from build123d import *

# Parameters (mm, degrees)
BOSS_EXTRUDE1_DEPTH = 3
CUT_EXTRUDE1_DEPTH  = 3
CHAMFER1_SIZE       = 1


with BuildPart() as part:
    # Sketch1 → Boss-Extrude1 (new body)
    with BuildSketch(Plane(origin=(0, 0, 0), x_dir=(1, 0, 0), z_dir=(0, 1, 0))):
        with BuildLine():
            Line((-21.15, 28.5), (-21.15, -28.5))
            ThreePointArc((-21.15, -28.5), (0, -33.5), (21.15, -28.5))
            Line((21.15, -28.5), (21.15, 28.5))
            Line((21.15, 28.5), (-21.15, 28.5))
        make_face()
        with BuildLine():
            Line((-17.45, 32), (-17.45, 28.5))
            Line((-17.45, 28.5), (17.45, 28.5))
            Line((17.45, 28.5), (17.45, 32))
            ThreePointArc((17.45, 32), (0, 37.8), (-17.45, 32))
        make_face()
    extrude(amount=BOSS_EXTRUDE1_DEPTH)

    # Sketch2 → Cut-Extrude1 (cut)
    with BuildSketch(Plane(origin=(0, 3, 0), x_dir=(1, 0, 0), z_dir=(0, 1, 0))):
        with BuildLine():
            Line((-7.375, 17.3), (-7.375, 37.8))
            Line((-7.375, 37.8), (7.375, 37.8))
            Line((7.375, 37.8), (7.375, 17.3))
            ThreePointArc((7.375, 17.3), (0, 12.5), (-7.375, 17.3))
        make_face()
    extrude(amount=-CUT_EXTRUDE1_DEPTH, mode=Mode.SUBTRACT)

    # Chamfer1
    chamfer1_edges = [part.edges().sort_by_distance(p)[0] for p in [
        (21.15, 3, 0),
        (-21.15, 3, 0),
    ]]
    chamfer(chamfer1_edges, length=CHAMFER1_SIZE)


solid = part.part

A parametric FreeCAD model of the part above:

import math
import FreeCAD as App
import Part
import Sketcher


def edges_at(feature, points):
    """Names of the edges that pass closest to the given points."""
    edges = feature.Shape.Edges
    near = lambda p: min(range(len(edges)), key=lambda i: edges[i].distToShape(Part.Vertex(*p))[0])
    return sorted({f"Edge{near(p) + 1}" for p in points})

doc = App.newDocument("Part")
body = doc.addObject("PartDesign::Body", "Body")

# Sketch on XZ plane
sketch1 = doc.addObject("Sketcher::SketchObject", "Sketch")
body.addObject(sketch1)
sketch1.AttachmentSupport = (doc.XZ_Plane, [""])
sketch1.MapMode = "FlatFace"
sketch1.addGeometry(Part.LineSegment(App.Vector(-21.15, -28.5, 0), App.Vector(-21.15, 28.5, 0)), False)
sketch1.addGeometry(Part.ArcOfCircle(Part.Circle(App.Vector(0, -13.73225, 0), App.Vector(0, 0, 1), 47.23225), math.radians(63.398195), math.radians(116.601805)), False)
sketch1.addGeometry(Part.LineSegment(App.Vector(21.15, 28.5, 0), App.Vector(21.15, -28.5, 0)), False)
sketch1.addGeometry(Part.LineSegment(App.Vector(21.15, -28.5, 0), App.Vector(17.45, -28.5, 0)), False)
sketch1.addGeometry(Part.LineSegment(App.Vector(17.45, -28.5, 0), App.Vector(17.45, -32, 0)), False)
sketch1.addGeometry(Part.ArcOfCircle(Part.Circle(App.Vector(0, -8.649784, 0), App.Vector(0, 0, 1), 29.150216), math.radians(-126.771367), math.radians(-53.228633)), False)
sketch1.addGeometry(Part.LineSegment(App.Vector(-17.45, -32, 0), App.Vector(-17.45, -28.5, 0)), False)
sketch1.addGeometry(Part.LineSegment(App.Vector(-17.45, -28.5, 0), App.Vector(-21.15, -28.5, 0)), False)
sketch1.addConstraint(Sketcher.Constraint("Coincident", 0, 2, 1, 2))
sketch1.addConstraint(Sketcher.Constraint("Coincident", 1, 1, 2, 1))
sketch1.addConstraint(Sketcher.Constraint("Coincident", 2, 2, 3, 1))
sketch1.addConstraint(Sketcher.Constraint("Coincident", 3, 2, 4, 1))
sketch1.addConstraint(Sketcher.Constraint("Coincident", 4, 2, 5, 2))
sketch1.addConstraint(Sketcher.Constraint("Coincident", 5, 1, 6, 1))
sketch1.addConstraint(Sketcher.Constraint("Coincident", 6, 2, 7, 1))
sketch1.addConstraint(Sketcher.Constraint("Coincident", 7, 2, 0, 1))
sketch1.addConstraint(Sketcher.Constraint("Vertical", 0))
sketch1.addConstraint(Sketcher.Constraint("Vertical", 2))
sketch1.addConstraint(Sketcher.Constraint("Horizontal", 3))
sketch1.addConstraint(Sketcher.Constraint("Vertical", 4))
sketch1.addConstraint(Sketcher.Constraint("Vertical", 6))
sketch1.addConstraint(Sketcher.Constraint("Horizontal", 7))
sketch1.addConstraint(Sketcher.Constraint("Symmetric", 0, 2, 2, 2, -1, 1))
sketch1.addConstraint(Sketcher.Constraint("Symmetric", 4, 2, 5, 1, -2))
sketch1.addConstraint(Sketcher.Constraint("PointOnObject", 1, 3, -2))
sketch1.addConstraint(Sketcher.Constraint("Horizontal", 3, 2, 6, 2))
sketch1.addConstraint(Sketcher.Constraint("DistanceY", 0, 1, 0, 2, 57.0))
sketch1.addConstraint(Sketcher.Constraint("DistanceX", 3, 2, 3, 1, 3.7))
sketch1.addConstraint(Sketcher.Constraint("DistanceY", 4, 2, 4, 1, 3.5))
sketch1.addConstraint(Sketcher.Constraint("DistanceX", 0, 2, 1, 1, 42.3))
sketch1.addConstraint(Sketcher.Constraint("Radius", 1, 47.23225))
sketch1.addConstraint(Sketcher.Constraint("Radius", 5, 29.150216))
pad1 = doc.addObject("PartDesign::Pad", "Pad")
body.addObject(pad1)
pad1.Profile = sketch1
pad1.Length = 3
pad1.Reversed = True

# Sketch on XZ plane
sketch2 = doc.addObject("Sketcher::SketchObject", "Sketch001")
body.addObject(sketch2)
sketch2.AttachmentSupport = (doc.XZ_Plane, [""])
sketch2.MapMode = "FlatFace"
sketch2.AttachmentOffset = App.Placement(App.Vector(0, 0, -3), App.Rotation())
sketch2.addGeometry(Part.LineSegment(App.Vector(-7.375, -37.8, 0), App.Vector(-7.375, -17.3, 0)), False)
sketch2.addGeometry(Part.ArcOfCircle(Part.Circle(App.Vector(0, -20.56569, 0), App.Vector(0, 0, 1), 8.06569), math.radians(23.884023), math.radians(156.115977)), False)
sketch2.addGeometry(Part.LineSegment(App.Vector(7.375, -17.3, 0), App.Vector(7.375, -37.8, 0)), False)
sketch2.addGeometry(Part.LineSegment(App.Vector(7.375, -37.8, 0), App.Vector(-7.375, -37.8, 0)), False)
sketch2.addConstraint(Sketcher.Constraint("Coincident", 0, 2, 1, 2))
sketch2.addConstraint(Sketcher.Constraint("Coincident", 1, 1, 2, 1))
sketch2.addConstraint(Sketcher.Constraint("Coincident", 2, 2, 3, 1))
sketch2.addConstraint(Sketcher.Constraint("Coincident", 3, 2, 0, 1))
sketch2.addConstraint(Sketcher.Constraint("Vertical", 0))
sketch2.addConstraint(Sketcher.Constraint("Vertical", 2))
sketch2.addConstraint(Sketcher.Constraint("Horizontal", 3))
sketch2.addConstraint(Sketcher.Constraint("Symmetric", 0, 2, 1, 1, -2))
sketch2.addConstraint(Sketcher.Constraint("DistanceY", 0, 1, 0, 2, 20.5))
sketch2.addConstraint(Sketcher.Constraint("DistanceX", 3, 2, 3, 1, 14.75))
sketch2.addConstraint(Sketcher.Constraint("DistanceY", 0, 2, -1, 1, 17.3))
sketch2.addConstraint(Sketcher.Constraint("Radius", 1, 8.06569))
pocket1 = doc.addObject("PartDesign::Pocket", "Pocket")
body.addObject(pocket1)
pocket1.Profile = sketch2
pocket1.Length = 3
pocket1.Reversed = True
doc.recompute()

chamfer = doc.addObject("PartDesign::Chamfer", "Chamfer")
body.addObject(chamfer)
chamfer.Base = (pocket1, edges_at(pocket1, [(21.15, 3, 0), (-21.15, 3, 0)]))
chamfer.Size = 1

doc.recompute()
